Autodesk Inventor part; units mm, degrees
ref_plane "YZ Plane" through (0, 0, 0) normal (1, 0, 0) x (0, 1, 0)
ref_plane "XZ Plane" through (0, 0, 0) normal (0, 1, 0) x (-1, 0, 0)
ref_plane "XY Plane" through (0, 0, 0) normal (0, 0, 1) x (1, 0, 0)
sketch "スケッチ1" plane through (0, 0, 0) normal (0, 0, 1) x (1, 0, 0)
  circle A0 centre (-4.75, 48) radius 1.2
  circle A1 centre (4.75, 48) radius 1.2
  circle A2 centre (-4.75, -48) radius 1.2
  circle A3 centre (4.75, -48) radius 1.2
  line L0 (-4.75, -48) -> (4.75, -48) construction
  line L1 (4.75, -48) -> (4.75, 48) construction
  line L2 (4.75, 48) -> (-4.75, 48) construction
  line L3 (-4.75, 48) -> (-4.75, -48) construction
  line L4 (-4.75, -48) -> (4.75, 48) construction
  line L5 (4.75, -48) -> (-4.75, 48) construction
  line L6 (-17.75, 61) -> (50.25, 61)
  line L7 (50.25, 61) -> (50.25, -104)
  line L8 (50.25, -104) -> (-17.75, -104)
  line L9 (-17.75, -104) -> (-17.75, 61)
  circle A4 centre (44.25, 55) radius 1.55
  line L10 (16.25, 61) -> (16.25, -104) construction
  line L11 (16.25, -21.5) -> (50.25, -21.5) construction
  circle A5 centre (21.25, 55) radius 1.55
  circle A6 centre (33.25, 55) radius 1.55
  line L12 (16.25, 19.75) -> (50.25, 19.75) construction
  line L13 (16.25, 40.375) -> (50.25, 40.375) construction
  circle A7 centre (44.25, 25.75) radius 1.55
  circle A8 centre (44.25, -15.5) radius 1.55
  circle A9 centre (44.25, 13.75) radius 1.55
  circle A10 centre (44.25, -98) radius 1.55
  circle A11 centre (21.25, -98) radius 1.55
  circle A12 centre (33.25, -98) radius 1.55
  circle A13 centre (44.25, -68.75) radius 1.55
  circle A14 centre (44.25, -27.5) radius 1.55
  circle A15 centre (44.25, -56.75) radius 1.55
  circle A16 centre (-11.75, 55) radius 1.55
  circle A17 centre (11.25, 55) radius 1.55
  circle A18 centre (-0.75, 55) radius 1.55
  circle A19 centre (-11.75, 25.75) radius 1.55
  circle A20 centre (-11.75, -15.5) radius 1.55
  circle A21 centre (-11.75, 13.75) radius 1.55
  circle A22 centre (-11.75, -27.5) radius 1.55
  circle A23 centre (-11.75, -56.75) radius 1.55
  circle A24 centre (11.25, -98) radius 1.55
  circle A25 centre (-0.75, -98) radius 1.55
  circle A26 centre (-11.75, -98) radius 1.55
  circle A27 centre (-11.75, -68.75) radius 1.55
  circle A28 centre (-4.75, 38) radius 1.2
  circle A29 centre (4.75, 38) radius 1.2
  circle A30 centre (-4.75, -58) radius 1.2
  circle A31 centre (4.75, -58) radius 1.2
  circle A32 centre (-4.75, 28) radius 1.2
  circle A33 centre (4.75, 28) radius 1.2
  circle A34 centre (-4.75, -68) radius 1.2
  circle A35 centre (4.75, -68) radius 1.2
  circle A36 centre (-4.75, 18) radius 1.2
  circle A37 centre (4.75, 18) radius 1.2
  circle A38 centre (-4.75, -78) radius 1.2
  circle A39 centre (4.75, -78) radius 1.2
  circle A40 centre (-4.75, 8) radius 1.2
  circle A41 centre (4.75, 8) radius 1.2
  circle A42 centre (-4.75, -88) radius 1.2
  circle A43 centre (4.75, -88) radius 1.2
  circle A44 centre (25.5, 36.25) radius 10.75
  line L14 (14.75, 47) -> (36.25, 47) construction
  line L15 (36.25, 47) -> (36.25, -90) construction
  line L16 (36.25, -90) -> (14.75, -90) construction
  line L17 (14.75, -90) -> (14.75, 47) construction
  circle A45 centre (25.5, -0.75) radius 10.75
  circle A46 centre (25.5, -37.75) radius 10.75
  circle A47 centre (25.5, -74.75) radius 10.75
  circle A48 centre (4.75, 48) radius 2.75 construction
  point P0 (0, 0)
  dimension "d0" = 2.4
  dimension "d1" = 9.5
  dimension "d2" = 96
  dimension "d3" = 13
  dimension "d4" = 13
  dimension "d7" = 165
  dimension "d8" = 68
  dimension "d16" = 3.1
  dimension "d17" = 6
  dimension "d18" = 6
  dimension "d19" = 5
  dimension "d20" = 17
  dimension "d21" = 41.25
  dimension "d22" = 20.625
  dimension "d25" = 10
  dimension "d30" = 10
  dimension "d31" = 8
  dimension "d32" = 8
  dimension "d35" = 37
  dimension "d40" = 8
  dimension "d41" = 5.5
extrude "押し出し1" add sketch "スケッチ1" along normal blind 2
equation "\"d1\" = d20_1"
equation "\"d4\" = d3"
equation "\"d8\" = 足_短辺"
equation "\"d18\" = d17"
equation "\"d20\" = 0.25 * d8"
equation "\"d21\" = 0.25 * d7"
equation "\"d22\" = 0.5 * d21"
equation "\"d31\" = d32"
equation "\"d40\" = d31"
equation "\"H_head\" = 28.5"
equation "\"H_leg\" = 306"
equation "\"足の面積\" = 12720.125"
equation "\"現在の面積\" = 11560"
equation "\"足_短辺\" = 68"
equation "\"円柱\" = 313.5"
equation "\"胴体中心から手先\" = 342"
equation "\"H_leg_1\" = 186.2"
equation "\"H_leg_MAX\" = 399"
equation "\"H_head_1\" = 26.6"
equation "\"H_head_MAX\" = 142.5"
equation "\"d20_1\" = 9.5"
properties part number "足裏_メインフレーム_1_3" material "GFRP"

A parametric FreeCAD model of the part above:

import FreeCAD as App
import Part
import Sketcher

V = App.Vector
Q = App.Units.Quantity


def add_polygon(sketch, points):
    """Adds a closed chain of lines whose ends are joined by coincident constraints."""
    first, n = sketch.GeometryCount, len(points)
    for a, b in zip(points, points[1:] + points[:1]):
        sketch.addGeometry(Part.LineSegment(App.Vector(*a, 0), App.Vector(*b, 0)), False)
    for i in range(n):
        sketch.addConstraint(Sketcher.Constraint("Coincident", first + i, 2, first + (i + 1) % n, 1))

doc = App.newDocument("Part")
body = doc.addObject("PartDesign::Body", "Body")

sketch1 = body.newObject("Sketcher::SketchObject", "Sketch")
sketch1.AttachmentSupport = (doc.getObject("XY_Plane"), [""])
sketch1.MapMode = "FlatFace"
add_polygon(sketch1, [(50.2, 61), (-17.8, 61), (-17.8, -104), (50.2, -104)])
sketch1.addGeometry(Part.Circle(V(-11.8, -98, 0), V(0, 0, 1), 1.6), False)
sketch1.addGeometry(Part.Circle(V(-4.8, -88, 0), V(0, 0, 1), 1.2), False)
sketch1.addGeometry(Part.Circle(V(-11.8, -68.8, 0), V(0, 0, 1), 1.6), False)
sketch1.addGeometry(Part.Circle(V(-4.8, -78, 0), V(0, 0, 1), 1.2), False)
sketch1.addGeometry(Part.Circle(V(-4.8, -68, 0), V(0, 0, 1), 1.2), False)
sketch1.addGeometry(Part.Circle(V(-0.8, -98, 0), V(0, 0, 1), 1.6), False)
sketch1.addGeometry(Part.Circle(V(4.8, -88, 0), V(0, 0, 1), 1.2), False)
sketch1.addGeometry(Part.Circle(V(11.2, -98, 0), V(0, 0, 1), 1.6), False)
sketch1.addGeometry(Part.Circle(V(4.8, -78, 0), V(0, 0, 1), 1.2), False)
sketch1.addGeometry(Part.Circle(V(4.8, -68, 0), V(0, 0, 1), 1.2), False)
sketch1.addGeometry(Part.Circle(V(-11.8, -56.8, 0), V(0, 0, 1), 1.6), False)
sketch1.addGeometry(Part.Circle(V(-4.8, -58, 0), V(0, 0, 1), 1.2), False)
sketch1.addGeometry(Part.Circle(V(-4.8, -48, 0), V(0, 0, 1), 1.2), False)
sketch1.addGeometry(Part.Circle(V(-11.8, -27.5, 0), V(0, 0, 1), 1.6), False)
sketch1.addGeometry(Part.Circle(V(4.8, -58, 0), V(0, 0, 1), 1.2), False)
sketch1.addGeometry(Part.Circle(V(4.8, -48, 0), V(0, 0, 1), 1.2), False)
sketch1.addGeometry(Part.Circle(V(21.2, -98, 0), V(0, 0, 1), 1.6), False)
sketch1.addGeometry(Part.Circle(V(25.5, -74.8, 0), V(0, 0, 1), 10.8), False)
sketch1.addGeometry(Part.Circle(V(33.2, -98, 0), V(0, 0, 1), 1.6), False)
sketch1.addGeometry(Part.Circle(V(44.2, -98, 0), V(0, 0, 1), 1.6), False)
sketch1.addGeometry(Part.Circle(V(44.2, -68.8, 0), V(0, 0, 1), 1.6), False)
sketch1.addGeometry(Part.Circle(V(25.5, -37.8, 0), V(0, 0, 1), 10.8), False)
sketch1.addGeometry(Part.Circle(V(44.2, -56.8, 0), V(0, 0, 1), 1.6), False)
sketch1.addGeometry(Part.Circle(V(44.2, -27.5, 0), V(0, 0, 1), 1.6), False)
sketch1.addGeometry(Part.Circle(V(-11.8, -15.5, 0), V(0, 0, 1), 1.6), False)
sketch1.addGeometry(Part.Circle(V(-11.8, 13.8, 0), V(0, 0, 1), 1.6), False)
sketch1.addGeometry(Part.Circle(V(-4.8, 8, 0), V(0, 0, 1), 1.2), False)
sketch1.addGeometry(Part.Circle(V(-4.8, 18, 0), V(0, 0, 1), 1.2), False)
sketch1.addGeometry(Part.Circle(V(4.8, 8, 0), V(0, 0, 1), 1.2), False)
sketch1.addGeometry(Part.Circle(V(4.8, 18, 0), V(0, 0, 1), 1.2), False)
sketch1.addGeometry(Part.Circle(V(-11.8, 25.8, 0), V(0, 0, 1), 1.6), False)
sketch1.addGeometry(Part.Circle(V(-4.8, 28, 0), V(0, 0, 1), 1.2), False)
sketch1.addGeometry(Part.Circle(V(-4.8, 38, 0), V(0, 0, 1), 1.2), False)
sketch1.addGeometry(Part.Circle(V(-11.8, 55, 0), V(0, 0, 1), 1.6), False)
sketch1.addGeometry(Part.Circle(V(-4.8, 48, 0), V(0, 0, 1), 1.2), False)
sketch1.addGeometry(Part.Circle(V(4.8, 28, 0), V(0, 0, 1), 1.2), False)
sketch1.addGeometry(Part.Circle(V(4.8, 38, 0), V(0, 0, 1), 1.2), False)
sketch1.addGeometry(Part.Circle(V(4.8, 48, 0), V(0, 0, 1), 1.2), False)
sketch1.addGeometry(Part.Circle(V(-0.8, 55, 0), V(0, 0, 1), 1.6), False)
sketch1.addGeometry(Part.Circle(V(11.2, 55, 0), V(0, 0, 1), 1.6), False)
sketch1.addGeometry(Part.Circle(V(25.5, -0.8, 0), V(0, 0, 1), 10.8), False)
sketch1.addGeometry(Part.Circle(V(44.2, -15.5, 0), V(0, 0, 1), 1.6), False)
sketch1.addGeometry(Part.Circle(V(44.2, 13.8, 0), V(0, 0, 1), 1.6), False)
sketch1.addGeometry(Part.Circle(V(25.5, 36.2, 0), V(0, 0, 1), 10.8), False)
sketch1.addGeometry(Part.Circle(V(21.2, 55, 0), V(0, 0, 1), 1.6), False)
sketch1.addGeometry(Part.Circle(V(44.2, 25.8, 0), V(0, 0, 1), 1.6), False)
sketch1.addGeometry(Part.Circle(V(33.2, 55, 0), V(0, 0, 1), 1.6), False)
sketch1.addGeometry(Part.Circle(V(44.2, 55, 0), V(0, 0, 1), 1.6), False)
sketch1.addConstraint([
    Sketcher.Constraint("Horizontal", 0),
    Sketcher.Constraint("Vertical", 1),
    Sketcher.Constraint("Horizontal", 2),
    Sketcher.Constraint("Vertical", 3),
    Sketcher.Constraint("Equal", 4, 6),
    Sketcher.Constraint("Equal", 5, 7),
    Sketcher.Constraint("Equal", 7, 8),
    Sketcher.Constraint("Equal", 6, 9),
    Sketcher.Constraint("Equal", 8, 10),
    Sketcher.Constraint("Equal", 9, 11),
    Sketcher.Constraint("Equal", 10, 12),
    Sketcher.Constraint("Equal", 12, 13),
    Sketcher.Constraint("Equal", 11, 14),
    Sketcher.Constraint("Equal", 13, 15),
    Sketcher.Constraint("Equal", 15, 16),
    Sketcher.Constraint("Equal", 14, 17),
    Sketcher.Constraint("Equal", 16, 18),
    Sketcher.Constraint("Equal", 18, 19),
    Sketcher.Constraint("Equal", 17, 20),
    Sketcher.Constraint("Equal", 20, 22),
    Sketcher.Constraint("Equal", 22, 23),
    Sketcher.Constraint("Equal", 23, 24),
    Sketcher.Constraint("Equal", 21, 25),
    Sketcher.Constraint("Equal", 24, 26),
    Sketcher.Constraint("Equal", 26, 27),
    Sketcher.Constraint("Equal", 27, 28),
    Sketcher.Constraint("Equal", 28, 29),
    Sketcher.Constraint("Equal", 19, 30),
    Sketcher.Constraint("Equal", 30, 31),
    Sketcher.Constraint("Equal", 31, 32),
    Sketcher.Constraint("Equal", 32, 33),
    Sketcher.Constraint("Equal", 29, 34),
    Sketcher.Constraint("Equal", 33, 35),
    Sketcher.Constraint("Equal", 35, 36),
    Sketcher.Constraint("Equal", 34, 37),
    Sketcher.Constraint("Equal", 36, 38),
    Sketcher.Constraint("Equal", 38, 39),
    Sketcher.Constraint("Equal", 39, 40),
    Sketcher.Constraint("Equal", 40, 41),
    Sketcher.Constraint("Equal", 37, 42),
    Sketcher.Constraint("Equal", 42, 43),
    Sketcher.Constraint("Equal", 25, 44),
    Sketcher.Constraint("Equal", 43, 45),
    Sketcher.Constraint("Equal", 45, 46),
    Sketcher.Constraint("Equal", 44, 47),
    Sketcher.Constraint("Equal", 46, 48),
    Sketcher.Constraint("Equal", 48, 49),
    Sketcher.Constraint("Equal", 49, 50),
    Sketcher.Constraint("Equal", 50, 51),
    Sketcher.Constraint("Symmetric", 19, 3, 38, 3, -1, 1),
    Sketcher.Constraint("Symmetric", 16, 3, 41, 3, -1, 1),
    Sketcher.Constraint("Symmetric", 5, 3, 10, 3, -2),
    Sketcher.Constraint("Symmetric", 7, 3, 12, 3, -2),
    Sketcher.Constraint("Symmetric", 8, 3, 13, 3, -2),
    Sketcher.Constraint("Symmetric", 15, 3, 18, 3, -2),
    Sketcher.Constraint("Symmetric", 16, 3, 19, 3, -2),
    Sketcher.Constraint("Symmetric", 30, 3, 32, 3, -2),
    Sketcher.Constraint("Symmetric", 31, 3, 33, 3, -2),
    Sketcher.Constraint("Symmetric", 35, 3, 39, 3, -2),
    Sketcher.Constraint("Symmetric", 36, 3, 40, 3, -2),
    Sketcher.Constraint("Horizontal", 4, 3, 9, 3),
    Sketcher.Constraint("Horizontal", 9, 3, 11, 3),
    Sketcher.Constraint("Horizontal", 11, 3, 20, 3),
    Sketcher.Constraint("Horizontal", 20, 3, 22, 3),
    Sketcher.Constraint("Horizontal", 22, 3, 23, 3),
    Sketcher.Constraint("Horizontal", 6, 3, 24, 3),
    Sketcher.Constraint("Horizontal", 14, 3, 26, 3),
    Sketcher.Constraint("Horizontal", 17, 3, 27, 3),
    Sketcher.Constraint("Horizontal", 37, 3, 42, 3),
    Sketcher.Constraint("Horizontal", 42, 3, 43, 3),
    Sketcher.Constraint("Horizontal", 28, 3, 45, 3),
    Sketcher.Constraint("Horizontal", 29, 3, 46, 3),
    Sketcher.Constraint("Horizontal", 43, 3, 48, 3),
    Sketcher.Constraint("Horizontal", 34, 3, 49, 3),
    Sketcher.Constraint("Horizontal", 48, 3, 50, 3),
    Sketcher.Constraint("Horizontal", 50, 3, 51, 3),
    Sketcher.Constraint("Vertical", 4, 3, 6, 3),
    Sketcher.Constraint("Vertical", 5, 3, 7, 3),
    Sketcher.Constraint("Vertical", 7, 3, 8, 3),
    Sketcher.Constraint("Vertical", 6, 3, 14, 3),
    Sketcher.Constraint("Vertical", 8, 3, 15, 3),
    Sketcher.Constraint("Vertical", 15, 3, 16, 3),
    Sketcher.Constraint("Vertical", 14, 3, 17, 3),
    Sketcher.Constraint("Vertical", 23, 3, 24, 3),
    Sketcher.Constraint("Vertical", 21, 3, 25, 3),
    Sketcher.Constraint("Vertical", 24, 3, 26, 3),
    Sketcher.Constraint("Vertical", 26, 3, 27, 3),
    Sketcher.Constraint("Vertical", 17, 3, 28, 3),
    Sketcher.Constraint("Vertical", 28, 3, 29, 3),
    Sketcher.Constraint("Vertical", 16, 3, 30, 3),
    Sketcher.Constraint("Vertical", 30, 3, 31, 3),
    Sketcher.Constraint("Vertical", 29, 3, 34, 3),
    Sketcher.Constraint("Vertical", 31, 3, 35, 3),
    Sketcher.Constraint("Vertical", 35, 3, 36, 3),
    Sketcher.Constraint("Vertical", 34, 3, 37, 3),
    Sketcher.Constraint("Vertical", 9, 3, 42, 3),
    Sketcher.Constraint("Vertical", 11, 3, 43, 3),
    Sketcher.Constraint("Vertical", 25, 3, 44, 3),
    Sketcher.Constraint("Vertical", 27, 3, 45, 3),
    Sketcher.Constraint("Vertical", 45, 3, 46, 3),
    Sketcher.Constraint("Vertical", 44, 3, 47, 3),
    Sketcher.Constraint("Vertical", 20, 3, 48, 3),
    Sketcher.Constraint("Vertical", 46, 3, 49, 3),
    Sketcher.Constraint("Vertical", 22, 3, 50, 3),
    Sketcher.Constraint("Vertical", 49, 3, 51, 3),
    Sketcher.Constraint("Diameter", 4, Q("3.1 mm")),
    Sketcher.Constraint("Diameter", 5, Q("2.4 mm")),
    Sketcher.Constraint("DistanceX", 0, 2, 0, 1, Q("68 mm")),
    Sketcher.Constraint("DistanceY", 1, 2, 1, 1, Q("165 mm")),
    Sketcher.Constraint("DistanceY", 8, 3, -1, 1, Q("68 mm")),
    Sketcher.Constraint("DistanceY", -1, 1, 30, 3, Q("8 mm")),
    Sketcher.Constraint("DistanceY", 4, 3, 5, 3, Q("10 mm")),
    Sketcher.Constraint("DistanceY", 5, 3, 7, 3, Q("10 mm")),
    Sketcher.Constraint("DistanceY", 7, 3, 8, 3, Q("10 mm")),
    Sketcher.Constraint("DistanceY", 8, 3, 15, 3, Q("10 mm")),
    Sketcher.Constraint("DistanceY", 15, 3, 16, 3, Q("10 mm")),
    Sketcher.Constraint("DistanceX", 11, 3, 20, 3, Q("10 mm")),
    Sketcher.Constraint("DistanceY", 21, 3, 24, 3, Q("6 mm")),
    Sketcher.Constraint("DistanceY", 30, 3, 31, 3, Q("10 mm")),
    Sketcher.Constraint("DistanceY", 31, 3, 35, 3, Q("10 mm")),
    Sketcher.Constraint("DistanceY", 35, 3, 36, 3, Q("10 mm")),
    Sketcher.Constraint("DistanceY", 36, 3, 37, 3, Q("17 mm")),
    Sketcher.Constraint("DistanceX", 0, 2, 37, 3, Q("6 mm")),
    Sketcher.Constraint("DistanceY", 37, 3, 0, 2, Q("6 mm")),
    Sketcher.Constraint("DistanceX", 0, 2, 42, 3, Q("17 mm")),
    Sketcher.Constraint("DistanceX", 0, 2, 38, 3, Q("13 mm")),
    Sketcher.Constraint("DistanceX", 23, 3, 2, 2, Q("6 mm")),
    Sketcher.Constraint("DistanceX", 22, 3, 2, 2, Q("17 mm")),
    Sketcher.Constraint("Diameter", 21, Q("21.5 mm")),
    Sketcher.Constraint("DistanceX", 5, 3, 10, 3, Q("9.5 mm")),
    Sketcher.Constraint("DistanceY", 6, 3, 17, 3, Q("41.25 mm")),
    Sketcher.Constraint("DistanceY", 14, 3, 28, 3, Q("41.25 mm")),
    Sketcher.Constraint("DistanceY", 17, 3, 29, 3, Q("41.25 mm")),
    Sketcher.Constraint("DistanceX", 9, 3, 11, 3, Q("12 mm")),
    Sketcher.Constraint("DistanceY", 6, 3, 14, 3, Q("12 mm")),
    Sketcher.Constraint("DistanceY", 24, 3, 25, 3, Q("31 mm")),
    Sketcher.Constraint("DistanceY", 29, 3, 34, 3, Q("12 mm")),
    Sketcher.Constraint("DistanceY", 17, 3, -1, 1, Q("27.5 mm")),
    Sketcher.Constraint("DistanceX", -1, 1, 21, 3, Q("25.5 mm")),
    Sketcher.Constraint("DistanceY", 44, 3, 46, 3, Q("14.5 mm")),
    Sketcher.Constraint("DistanceY", 49, 3, 47, 3, Q("10.5 mm")),
])
pad1 = body.newObject("PartDesign::Pad", "Pad")
pad1.Profile = sketch1
pad1.Length = 2

doc.recompute()
